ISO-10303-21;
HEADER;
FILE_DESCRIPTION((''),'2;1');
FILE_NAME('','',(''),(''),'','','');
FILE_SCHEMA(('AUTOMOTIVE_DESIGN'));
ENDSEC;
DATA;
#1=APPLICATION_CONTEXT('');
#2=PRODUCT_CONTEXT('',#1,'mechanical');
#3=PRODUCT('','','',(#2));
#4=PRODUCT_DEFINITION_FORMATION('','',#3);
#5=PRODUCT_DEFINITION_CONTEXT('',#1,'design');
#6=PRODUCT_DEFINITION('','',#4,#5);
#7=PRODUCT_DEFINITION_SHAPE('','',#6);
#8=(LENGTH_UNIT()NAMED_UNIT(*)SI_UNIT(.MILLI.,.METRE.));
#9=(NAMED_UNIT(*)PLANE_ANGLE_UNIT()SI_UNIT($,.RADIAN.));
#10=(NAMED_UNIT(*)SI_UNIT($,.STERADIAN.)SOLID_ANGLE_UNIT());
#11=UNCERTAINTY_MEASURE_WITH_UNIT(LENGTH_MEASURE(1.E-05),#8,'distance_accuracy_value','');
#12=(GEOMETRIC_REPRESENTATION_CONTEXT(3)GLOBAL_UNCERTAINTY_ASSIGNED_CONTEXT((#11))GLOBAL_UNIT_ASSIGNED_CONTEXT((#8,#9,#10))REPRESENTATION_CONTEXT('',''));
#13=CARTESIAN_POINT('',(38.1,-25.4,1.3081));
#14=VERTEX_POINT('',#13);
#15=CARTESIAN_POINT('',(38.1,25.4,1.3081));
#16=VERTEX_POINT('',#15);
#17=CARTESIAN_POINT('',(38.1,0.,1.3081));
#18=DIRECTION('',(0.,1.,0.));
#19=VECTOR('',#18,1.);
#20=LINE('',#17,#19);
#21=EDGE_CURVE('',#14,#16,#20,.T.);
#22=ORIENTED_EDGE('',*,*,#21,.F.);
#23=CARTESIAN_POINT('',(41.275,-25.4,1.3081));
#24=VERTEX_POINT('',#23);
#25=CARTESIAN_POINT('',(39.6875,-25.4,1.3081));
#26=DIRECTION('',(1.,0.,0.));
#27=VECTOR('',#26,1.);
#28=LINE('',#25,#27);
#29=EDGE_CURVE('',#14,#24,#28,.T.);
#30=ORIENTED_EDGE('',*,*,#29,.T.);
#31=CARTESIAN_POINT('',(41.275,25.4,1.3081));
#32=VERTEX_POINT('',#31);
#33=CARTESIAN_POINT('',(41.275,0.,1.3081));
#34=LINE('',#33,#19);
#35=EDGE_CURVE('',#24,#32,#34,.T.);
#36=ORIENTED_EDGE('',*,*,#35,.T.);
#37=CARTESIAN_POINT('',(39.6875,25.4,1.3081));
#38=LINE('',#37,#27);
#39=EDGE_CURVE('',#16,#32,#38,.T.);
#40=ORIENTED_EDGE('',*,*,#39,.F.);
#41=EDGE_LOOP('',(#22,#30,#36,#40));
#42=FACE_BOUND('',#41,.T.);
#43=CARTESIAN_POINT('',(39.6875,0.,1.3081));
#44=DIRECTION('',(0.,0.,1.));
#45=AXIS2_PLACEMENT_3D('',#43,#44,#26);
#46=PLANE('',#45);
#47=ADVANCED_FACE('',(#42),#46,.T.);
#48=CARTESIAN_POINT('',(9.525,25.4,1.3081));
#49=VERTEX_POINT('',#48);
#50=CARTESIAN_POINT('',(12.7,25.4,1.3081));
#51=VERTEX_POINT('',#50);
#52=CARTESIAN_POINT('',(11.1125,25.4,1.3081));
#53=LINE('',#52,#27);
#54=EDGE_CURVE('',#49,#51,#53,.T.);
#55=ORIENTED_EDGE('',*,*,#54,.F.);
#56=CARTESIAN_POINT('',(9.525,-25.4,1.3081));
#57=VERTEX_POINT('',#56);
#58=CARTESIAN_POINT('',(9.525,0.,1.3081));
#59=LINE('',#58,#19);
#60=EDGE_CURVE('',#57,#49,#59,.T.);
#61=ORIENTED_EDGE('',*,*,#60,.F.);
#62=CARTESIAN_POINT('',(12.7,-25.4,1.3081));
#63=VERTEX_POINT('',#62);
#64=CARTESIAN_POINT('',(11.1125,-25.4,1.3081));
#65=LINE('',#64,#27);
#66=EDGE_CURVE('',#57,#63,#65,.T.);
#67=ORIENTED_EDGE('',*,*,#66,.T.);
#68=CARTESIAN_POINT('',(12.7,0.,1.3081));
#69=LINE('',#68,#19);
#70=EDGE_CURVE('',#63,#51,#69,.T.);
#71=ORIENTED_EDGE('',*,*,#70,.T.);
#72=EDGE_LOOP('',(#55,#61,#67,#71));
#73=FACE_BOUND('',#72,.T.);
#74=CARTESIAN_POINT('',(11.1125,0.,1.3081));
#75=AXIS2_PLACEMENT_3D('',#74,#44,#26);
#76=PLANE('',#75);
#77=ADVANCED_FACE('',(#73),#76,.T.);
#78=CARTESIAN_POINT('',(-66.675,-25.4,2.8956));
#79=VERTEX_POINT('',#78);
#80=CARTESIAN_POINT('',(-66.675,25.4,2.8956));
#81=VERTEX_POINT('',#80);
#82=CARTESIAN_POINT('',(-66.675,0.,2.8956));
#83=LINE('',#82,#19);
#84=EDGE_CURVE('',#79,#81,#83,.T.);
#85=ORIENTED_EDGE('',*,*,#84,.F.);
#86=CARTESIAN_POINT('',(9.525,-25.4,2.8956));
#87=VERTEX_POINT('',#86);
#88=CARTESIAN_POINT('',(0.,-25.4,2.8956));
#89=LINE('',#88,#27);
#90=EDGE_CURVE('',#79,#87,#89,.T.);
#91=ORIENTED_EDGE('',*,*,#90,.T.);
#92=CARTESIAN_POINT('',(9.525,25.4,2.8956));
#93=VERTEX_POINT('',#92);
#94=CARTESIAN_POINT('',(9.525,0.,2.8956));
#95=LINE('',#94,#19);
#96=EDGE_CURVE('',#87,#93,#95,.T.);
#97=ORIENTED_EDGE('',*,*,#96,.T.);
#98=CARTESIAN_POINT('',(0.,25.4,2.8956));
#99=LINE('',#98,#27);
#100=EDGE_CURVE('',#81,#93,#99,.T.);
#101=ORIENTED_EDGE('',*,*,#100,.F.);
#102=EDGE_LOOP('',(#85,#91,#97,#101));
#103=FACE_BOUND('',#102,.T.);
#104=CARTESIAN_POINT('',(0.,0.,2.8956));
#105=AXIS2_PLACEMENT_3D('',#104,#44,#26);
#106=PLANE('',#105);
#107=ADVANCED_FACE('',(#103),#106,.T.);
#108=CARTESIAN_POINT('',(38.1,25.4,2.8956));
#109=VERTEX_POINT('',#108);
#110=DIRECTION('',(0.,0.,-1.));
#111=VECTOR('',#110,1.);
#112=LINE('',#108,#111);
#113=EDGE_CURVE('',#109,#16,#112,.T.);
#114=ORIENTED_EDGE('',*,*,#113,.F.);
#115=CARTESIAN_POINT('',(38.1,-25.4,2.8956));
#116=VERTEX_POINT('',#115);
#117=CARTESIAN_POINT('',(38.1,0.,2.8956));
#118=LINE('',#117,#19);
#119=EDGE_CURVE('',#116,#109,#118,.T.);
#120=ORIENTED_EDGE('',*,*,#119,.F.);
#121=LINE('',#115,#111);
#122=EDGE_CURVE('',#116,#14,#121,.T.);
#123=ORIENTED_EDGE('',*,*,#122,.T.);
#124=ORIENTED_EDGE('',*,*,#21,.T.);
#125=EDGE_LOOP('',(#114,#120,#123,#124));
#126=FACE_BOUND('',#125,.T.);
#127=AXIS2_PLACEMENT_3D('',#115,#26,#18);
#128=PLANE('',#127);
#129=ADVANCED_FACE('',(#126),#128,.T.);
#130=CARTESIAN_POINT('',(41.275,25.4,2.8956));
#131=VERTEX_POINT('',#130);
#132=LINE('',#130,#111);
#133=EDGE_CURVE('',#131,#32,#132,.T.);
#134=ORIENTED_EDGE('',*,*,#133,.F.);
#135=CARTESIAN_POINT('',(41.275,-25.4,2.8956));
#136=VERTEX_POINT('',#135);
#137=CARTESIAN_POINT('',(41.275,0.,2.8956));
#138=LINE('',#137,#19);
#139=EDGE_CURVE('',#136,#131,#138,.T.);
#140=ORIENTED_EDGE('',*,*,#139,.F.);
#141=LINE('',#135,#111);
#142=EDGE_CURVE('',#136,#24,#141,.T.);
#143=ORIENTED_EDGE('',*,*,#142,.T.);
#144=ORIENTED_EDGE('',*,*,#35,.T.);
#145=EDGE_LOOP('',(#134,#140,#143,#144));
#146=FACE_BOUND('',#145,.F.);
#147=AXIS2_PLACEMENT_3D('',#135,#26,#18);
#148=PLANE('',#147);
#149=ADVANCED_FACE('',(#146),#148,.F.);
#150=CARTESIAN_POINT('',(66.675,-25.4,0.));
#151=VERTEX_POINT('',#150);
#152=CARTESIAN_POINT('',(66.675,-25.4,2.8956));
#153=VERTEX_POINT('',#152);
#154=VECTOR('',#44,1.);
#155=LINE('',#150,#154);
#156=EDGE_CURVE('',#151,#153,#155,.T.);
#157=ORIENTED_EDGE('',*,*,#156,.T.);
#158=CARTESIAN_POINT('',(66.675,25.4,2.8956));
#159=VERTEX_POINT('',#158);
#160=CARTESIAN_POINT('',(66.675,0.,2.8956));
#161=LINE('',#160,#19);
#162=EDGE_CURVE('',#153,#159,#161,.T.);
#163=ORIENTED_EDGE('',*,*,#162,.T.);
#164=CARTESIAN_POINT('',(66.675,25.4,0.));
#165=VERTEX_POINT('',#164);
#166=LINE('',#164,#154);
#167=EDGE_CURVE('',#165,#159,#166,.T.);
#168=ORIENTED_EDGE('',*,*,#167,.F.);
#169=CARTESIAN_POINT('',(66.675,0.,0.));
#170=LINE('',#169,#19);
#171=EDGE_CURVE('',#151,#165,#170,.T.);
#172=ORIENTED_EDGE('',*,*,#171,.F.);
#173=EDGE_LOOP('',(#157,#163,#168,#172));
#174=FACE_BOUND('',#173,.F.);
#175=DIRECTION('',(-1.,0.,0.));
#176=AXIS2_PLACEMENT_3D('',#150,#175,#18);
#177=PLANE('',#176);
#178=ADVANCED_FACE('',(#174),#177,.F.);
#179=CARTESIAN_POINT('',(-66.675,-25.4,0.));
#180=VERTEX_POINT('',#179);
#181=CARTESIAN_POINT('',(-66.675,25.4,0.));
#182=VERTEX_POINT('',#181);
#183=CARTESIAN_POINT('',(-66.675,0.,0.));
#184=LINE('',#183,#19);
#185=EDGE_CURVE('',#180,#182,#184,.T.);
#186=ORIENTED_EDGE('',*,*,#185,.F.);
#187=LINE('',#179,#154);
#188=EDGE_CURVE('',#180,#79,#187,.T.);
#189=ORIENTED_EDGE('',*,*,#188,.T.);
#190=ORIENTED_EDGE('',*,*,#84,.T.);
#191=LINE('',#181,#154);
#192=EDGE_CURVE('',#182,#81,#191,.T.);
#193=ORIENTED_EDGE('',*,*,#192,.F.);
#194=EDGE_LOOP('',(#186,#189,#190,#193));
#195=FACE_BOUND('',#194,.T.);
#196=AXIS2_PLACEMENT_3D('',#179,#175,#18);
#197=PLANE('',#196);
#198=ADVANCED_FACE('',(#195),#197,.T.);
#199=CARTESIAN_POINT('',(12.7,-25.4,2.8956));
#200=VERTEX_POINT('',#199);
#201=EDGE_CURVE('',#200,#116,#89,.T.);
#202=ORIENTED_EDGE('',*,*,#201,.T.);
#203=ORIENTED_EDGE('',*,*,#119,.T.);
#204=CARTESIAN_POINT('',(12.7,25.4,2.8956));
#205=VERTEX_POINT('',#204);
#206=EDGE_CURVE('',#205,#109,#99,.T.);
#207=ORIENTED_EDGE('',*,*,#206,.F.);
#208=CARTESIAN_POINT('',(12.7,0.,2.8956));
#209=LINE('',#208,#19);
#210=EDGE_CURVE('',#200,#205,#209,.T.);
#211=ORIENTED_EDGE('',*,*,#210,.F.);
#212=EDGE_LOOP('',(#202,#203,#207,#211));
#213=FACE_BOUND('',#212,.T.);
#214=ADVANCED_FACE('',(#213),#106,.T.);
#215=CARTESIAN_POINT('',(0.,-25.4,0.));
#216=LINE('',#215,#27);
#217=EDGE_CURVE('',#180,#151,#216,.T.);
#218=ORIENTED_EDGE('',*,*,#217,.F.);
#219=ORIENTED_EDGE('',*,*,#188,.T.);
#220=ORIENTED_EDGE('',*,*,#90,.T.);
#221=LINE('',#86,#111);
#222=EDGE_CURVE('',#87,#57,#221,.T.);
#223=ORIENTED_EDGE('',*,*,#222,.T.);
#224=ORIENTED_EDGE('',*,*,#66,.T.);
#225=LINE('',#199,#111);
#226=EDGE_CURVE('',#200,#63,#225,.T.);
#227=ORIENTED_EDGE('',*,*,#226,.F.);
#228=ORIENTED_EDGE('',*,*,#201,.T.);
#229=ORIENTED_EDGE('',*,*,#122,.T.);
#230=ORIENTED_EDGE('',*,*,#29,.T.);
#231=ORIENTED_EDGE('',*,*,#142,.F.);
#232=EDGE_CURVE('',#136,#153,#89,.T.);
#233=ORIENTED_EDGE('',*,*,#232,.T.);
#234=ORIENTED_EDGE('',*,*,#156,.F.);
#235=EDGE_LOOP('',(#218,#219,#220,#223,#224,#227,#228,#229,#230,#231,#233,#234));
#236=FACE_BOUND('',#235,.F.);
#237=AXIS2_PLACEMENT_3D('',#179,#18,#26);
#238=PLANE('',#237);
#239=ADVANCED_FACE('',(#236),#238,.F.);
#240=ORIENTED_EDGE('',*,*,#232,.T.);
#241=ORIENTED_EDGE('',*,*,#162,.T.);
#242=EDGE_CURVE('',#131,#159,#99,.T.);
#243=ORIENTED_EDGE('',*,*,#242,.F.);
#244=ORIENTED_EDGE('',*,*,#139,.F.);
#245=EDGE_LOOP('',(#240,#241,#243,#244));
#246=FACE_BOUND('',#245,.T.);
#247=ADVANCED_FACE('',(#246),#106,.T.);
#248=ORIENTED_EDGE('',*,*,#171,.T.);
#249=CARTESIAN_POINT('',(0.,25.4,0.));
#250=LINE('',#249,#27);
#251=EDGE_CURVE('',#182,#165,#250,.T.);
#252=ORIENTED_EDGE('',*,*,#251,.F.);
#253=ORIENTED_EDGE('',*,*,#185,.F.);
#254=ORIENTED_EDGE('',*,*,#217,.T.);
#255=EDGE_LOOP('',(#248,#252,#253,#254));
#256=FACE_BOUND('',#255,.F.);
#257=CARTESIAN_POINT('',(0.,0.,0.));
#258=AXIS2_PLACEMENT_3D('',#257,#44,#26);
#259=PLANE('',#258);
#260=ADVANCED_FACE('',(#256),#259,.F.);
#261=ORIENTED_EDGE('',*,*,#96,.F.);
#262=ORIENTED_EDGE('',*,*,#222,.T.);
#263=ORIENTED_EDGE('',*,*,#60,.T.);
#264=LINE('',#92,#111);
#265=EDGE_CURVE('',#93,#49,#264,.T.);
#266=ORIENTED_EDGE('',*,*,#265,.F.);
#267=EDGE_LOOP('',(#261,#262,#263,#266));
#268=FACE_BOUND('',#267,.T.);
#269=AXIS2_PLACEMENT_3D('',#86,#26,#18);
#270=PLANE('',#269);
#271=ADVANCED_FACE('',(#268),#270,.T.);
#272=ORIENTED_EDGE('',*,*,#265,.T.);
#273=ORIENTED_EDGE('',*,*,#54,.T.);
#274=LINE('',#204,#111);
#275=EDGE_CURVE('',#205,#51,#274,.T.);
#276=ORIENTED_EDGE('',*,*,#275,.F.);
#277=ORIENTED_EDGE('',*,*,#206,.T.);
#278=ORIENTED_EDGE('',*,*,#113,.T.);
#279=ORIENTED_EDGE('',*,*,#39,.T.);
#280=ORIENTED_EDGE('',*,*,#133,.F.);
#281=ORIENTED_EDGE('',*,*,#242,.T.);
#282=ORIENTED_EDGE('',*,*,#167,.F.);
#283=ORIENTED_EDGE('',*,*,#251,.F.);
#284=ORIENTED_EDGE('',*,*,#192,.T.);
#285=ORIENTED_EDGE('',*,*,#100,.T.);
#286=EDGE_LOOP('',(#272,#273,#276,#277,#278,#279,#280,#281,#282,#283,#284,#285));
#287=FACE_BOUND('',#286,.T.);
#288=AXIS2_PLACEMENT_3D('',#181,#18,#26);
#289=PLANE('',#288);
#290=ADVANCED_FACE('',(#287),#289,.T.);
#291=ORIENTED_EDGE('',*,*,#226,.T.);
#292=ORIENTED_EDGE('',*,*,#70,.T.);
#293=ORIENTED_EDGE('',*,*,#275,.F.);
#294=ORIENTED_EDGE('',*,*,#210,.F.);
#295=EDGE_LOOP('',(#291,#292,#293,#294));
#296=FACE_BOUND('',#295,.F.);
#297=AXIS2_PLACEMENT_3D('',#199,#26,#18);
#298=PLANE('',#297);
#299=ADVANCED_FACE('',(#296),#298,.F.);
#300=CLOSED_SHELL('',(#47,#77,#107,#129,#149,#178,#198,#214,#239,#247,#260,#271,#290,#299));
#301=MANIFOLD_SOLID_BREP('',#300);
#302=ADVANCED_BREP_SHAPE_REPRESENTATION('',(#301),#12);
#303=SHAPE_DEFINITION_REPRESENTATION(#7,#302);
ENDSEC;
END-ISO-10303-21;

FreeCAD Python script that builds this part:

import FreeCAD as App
import Part
import Sketcher

V = App.Vector
Q = App.Units.Quantity


def add_polygon(sketch, points):
    """Adds a closed chain of lines whose ends are joined by coincident constraints."""
    first, n = sketch.GeometryCount, len(points)
    for a, b in zip(points, points[1:] + points[:1]):
        sketch.addGeometry(Part.LineSegment(App.Vector(*a, 0), App.Vector(*b, 0)), False)
    for i in range(n):
        sketch.addConstraint(Sketcher.Constraint("Coincident", first + i, 2, first + (i + 1) % n, 1))

doc = App.newDocument("Part")
body = doc.addObject("PartDesign::Body", "Body")

# Sketch on XY plane
sketch1 = body.newObject("Sketcher::SketchObject", "Sketch")
sketch1.AttachmentSupport = (doc.getObject("XY_Plane"), [""])
sketch1.MapMode = "FlatFace"
add_polygon(sketch1, [(-67, 25), (-67, -25), (67, -25), (67, 25)])  # lines 0-3
sketch1.addConstraint([
    Sketcher.Constraint("Vertical", 0),
    Sketcher.Constraint("Horizontal", 1),
    Sketcher.Constraint("Vertical", 2),
    Sketcher.Constraint("Horizontal", 3),
    Sketcher.Constraint("Symmetric", 0, 2, 2, 2, -1, 1),
    Sketcher.Constraint("DistanceY", 0, 2, 0, 1, Q("2 in")),
    Sketcher.Constraint("DistanceX", 1, 1, 1, 2, Q("5.25 in")),
])
pad1 = body.newObject("PartDesign::Pad", "Pad")
pad1.Profile = sketch1
pad1.Length = Q("0.114 in")

# Sketch on XY plane
sketch2 = body.newObject("Sketcher::SketchObject", "Sketch001")
sketch2.AttachmentSupport = (doc.getObject("XY_Plane"), [""])
sketch2.MapMode = "FlatFace"
sketch2.AttachmentOffset = App.Placement(V(0, 0, 0.114 * 25.4), App.Rotation())
add_polygon(sketch2, [(38.1, 25.4), (38.1, -25.4), (41.3, -25.4), (41.3, 25.4)])  # lines 0-3
add_polygon(sketch2, [(9.5, 25.4), (9.5, -25.4), (12.7, -25.4), (12.7, 25.4)])  # lines 4-7
sketch2.addConstraint([
    Sketcher.Constraint("Vertical", 0),
    Sketcher.Constraint("Horizontal", 1),
    Sketcher.Constraint("Vertical", 2),
    Sketcher.Constraint("Horizontal", 3),
    Sketcher.Constraint("Vertical", 4),
    Sketcher.Constraint("Horizontal", 5),
    Sketcher.Constraint("Vertical", 6),
    Sketcher.Constraint("Horizontal", 7),
    Sketcher.Constraint("Horizontal", 1, 2, 4, 2),
    Sketcher.Constraint("Horizontal", 3, 2, 6, 2),
    Sketcher.Constraint("Equal", 3, 5),
    Sketcher.Constraint("DistanceY", 0, 2, 0, 1, Q("2 in")),
    Sketcher.Constraint("DistanceY", 0, 2, -1, 1, Q("1 in")),
    Sketcher.Constraint("DistanceX", 5, 2, 0, 2, Q("1 in")),
    Sketcher.Constraint("DistanceX", -1, 1, 0, 2, Q("1.5 in")),
    Sketcher.Constraint("DistanceX", 1, 1, 1, 2, Q("0.125 in")),
])
pocket1 = body.newObject("PartDesign::Pocket", "Pocket")
pocket1.Profile = sketch2
pocket1.Length = Q("0.0625 in")

doc.recompute()
